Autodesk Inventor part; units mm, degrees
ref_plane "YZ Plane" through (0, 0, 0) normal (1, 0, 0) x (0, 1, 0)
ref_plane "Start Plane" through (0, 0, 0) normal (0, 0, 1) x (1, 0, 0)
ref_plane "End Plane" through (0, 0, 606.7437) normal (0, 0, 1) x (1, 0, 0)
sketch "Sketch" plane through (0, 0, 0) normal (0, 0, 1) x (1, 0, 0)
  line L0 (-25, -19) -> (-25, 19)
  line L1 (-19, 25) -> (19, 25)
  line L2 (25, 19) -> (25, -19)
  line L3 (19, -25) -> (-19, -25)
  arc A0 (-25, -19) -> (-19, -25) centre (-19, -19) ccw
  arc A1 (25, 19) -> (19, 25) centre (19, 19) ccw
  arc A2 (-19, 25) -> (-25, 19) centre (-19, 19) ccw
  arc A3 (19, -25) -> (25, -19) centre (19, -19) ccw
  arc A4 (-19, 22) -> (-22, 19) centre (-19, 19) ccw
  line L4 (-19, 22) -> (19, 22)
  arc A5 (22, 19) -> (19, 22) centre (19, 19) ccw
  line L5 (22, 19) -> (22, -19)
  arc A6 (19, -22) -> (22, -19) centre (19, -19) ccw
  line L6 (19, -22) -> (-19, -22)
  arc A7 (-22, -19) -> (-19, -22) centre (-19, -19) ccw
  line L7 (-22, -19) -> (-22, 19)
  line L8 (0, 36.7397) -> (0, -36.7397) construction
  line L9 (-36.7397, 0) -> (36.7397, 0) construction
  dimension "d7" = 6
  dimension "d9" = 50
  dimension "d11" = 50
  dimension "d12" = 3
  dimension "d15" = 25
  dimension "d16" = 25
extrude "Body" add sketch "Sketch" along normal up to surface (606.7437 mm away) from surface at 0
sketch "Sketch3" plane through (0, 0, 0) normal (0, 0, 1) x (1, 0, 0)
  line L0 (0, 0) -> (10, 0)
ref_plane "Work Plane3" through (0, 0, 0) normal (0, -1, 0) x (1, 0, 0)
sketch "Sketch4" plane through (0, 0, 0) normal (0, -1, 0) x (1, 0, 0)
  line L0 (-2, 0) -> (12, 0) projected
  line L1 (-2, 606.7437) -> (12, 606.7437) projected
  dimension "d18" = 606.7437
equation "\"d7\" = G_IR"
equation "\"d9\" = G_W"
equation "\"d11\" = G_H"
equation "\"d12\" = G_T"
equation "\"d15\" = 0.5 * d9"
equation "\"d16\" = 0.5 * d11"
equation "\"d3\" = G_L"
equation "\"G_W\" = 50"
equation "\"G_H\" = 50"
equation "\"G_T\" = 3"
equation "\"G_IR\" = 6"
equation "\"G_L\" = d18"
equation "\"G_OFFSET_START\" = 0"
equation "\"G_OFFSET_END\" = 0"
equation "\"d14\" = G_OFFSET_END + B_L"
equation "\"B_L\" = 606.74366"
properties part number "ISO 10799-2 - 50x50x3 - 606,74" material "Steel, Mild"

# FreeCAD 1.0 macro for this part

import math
import FreeCAD as App
import Part
import Sketcher
from FreeCAD import Vector
Q = App.Units.Quantity

doc = App.newDocument("Part")
body = doc.addObject("PartDesign::Body", "Body")

# Sketch on XY plane
sketch1 = body.newObject("Sketcher::SketchObject", "Sketch")
sketch1.AttachmentSupport = (doc.getObject("XY_Plane"), [""])
sketch1.MapMode = "FlatFace"
sketch1.addGeometry(Part.LineSegment(Vector(-25, 19, 0), Vector(-25, -19, 0)), False)
sketch1.addGeometry(Part.ArcOfCircle(Part.Circle(Vector(-19, -19, 0), Vector(0, 0, 1), 6), math.radians(180), math.radians(270)), False)
sketch1.addGeometry(Part.LineSegment(Vector(-19, -25, 0), Vector(19, -25, 0)), False)
sketch1.addGeometry(Part.ArcOfCircle(Part.Circle(Vector(19, -19, 0), Vector(0, 0, 1), 6), math.radians(-90), math.radians(0)), False)
sketch1.addGeometry(Part.LineSegment(Vector(25, -19, 0), Vector(25, 19, 0)), False)
sketch1.addGeometry(Part.ArcOfCircle(Part.Circle(Vector(19, 19, 0), Vector(0, 0, 1), 6), math.radians(0), math.radians(90)), False)
sketch1.addGeometry(Part.LineSegment(Vector(19, 25, 0), Vector(-19, 25, 0)), False)
sketch1.addGeometry(Part.ArcOfCircle(Part.Circle(Vector(-19, 19, 0), Vector(0, 0, 1), 6), math.radians(90), math.radians(180)), False)
sketch1.addGeometry(Part.ArcOfCircle(Part.Circle(Vector(-19, 19, 0), Vector(0, 0, 1), 3), math.radians(90), math.radians(180)), False)
sketch1.addGeometry(Part.LineSegment(Vector(-19, 22, 0), Vector(19, 22, 0)), False)
sketch1.addGeometry(Part.ArcOfCircle(Part.Circle(Vector(19, 19, 0), Vector(0, 0, 1), 3), math.radians(0), math.radians(90)), False)
sketch1.addGeometry(Part.LineSegment(Vector(22, 19, 0), Vector(22, -19, 0)), False)
sketch1.addGeometry(Part.ArcOfCircle(Part.Circle(Vector(19, -19, 0), Vector(0, 0, 1), 3), math.radians(-90), math.radians(0)), False)
sketch1.addGeometry(Part.LineSegment(Vector(19, -22, 0), Vector(-19, -22, 0)), False)
sketch1.addGeometry(Part.ArcOfCircle(Part.Circle(Vector(-19, -19, 0), Vector(0, 0, 1), 3), math.radians(180), math.radians(270)), False)
sketch1.addGeometry(Part.LineSegment(Vector(-22, -19, 0), Vector(-22, 19, 0)), False)
sketch1.addConstraint(Sketcher.Constraint("Tangent", 0, 2, 1, 1))
sketch1.addConstraint(Sketcher.Constraint("Tangent", 1, 2, 2, 1))
sketch1.addConstraint(Sketcher.Constraint("Tangent", 2, 2, 3, 1))
sketch1.addConstraint(Sketcher.Constraint("Tangent", 3, 2, 4, 1))
sketch1.addConstraint(Sketcher.Constraint("Tangent", 4, 2, 5, 1))
sketch1.addConstraint(Sketcher.Constraint("Tangent", 5, 2, 6, 1))
sketch1.addConstraint(Sketcher.Constraint("Tangent", 6, 2, 7, 1))
sketch1.addConstraint(Sketcher.Constraint("Tangent", 7, 2, 0, 1))
sketch1.addConstraint(Sketcher.Constraint("Tangent", 8, 1, 9, 1))
sketch1.addConstraint(Sketcher.Constraint("Tangent", 9, 2, 10, 2))
sketch1.addConstraint(Sketcher.Constraint("Tangent", 10, 1, 11, 1))
sketch1.addConstraint(Sketcher.Constraint("Tangent", 11, 2, 12, 2))
sketch1.addConstraint(Sketcher.Constraint("Tangent", 12, 1, 13, 1))
sketch1.addConstraint(Sketcher.Constraint("Tangent", 13, 2, 14, 2))
sketch1.addConstraint(Sketcher.Constraint("Tangent", 14, 1, 15, 1))
sketch1.addConstraint(Sketcher.Constraint("Tangent", 15, 2, 8, 2))
sketch1.addConstraint(Sketcher.Constraint("Vertical", 0))
sketch1.addConstraint(Sketcher.Constraint("Horizontal", 2))
sketch1.addConstraint(Sketcher.Constraint("Vertical", 4))
sketch1.addConstraint(Sketcher.Constraint("Horizontal", 6))
sketch1.addConstraint(Sketcher.Constraint("Horizontal", 9))
sketch1.addConstraint(Sketcher.Constraint("Vertical", 11))
sketch1.addConstraint(Sketcher.Constraint("Horizontal", 13))
sketch1.addConstraint(Sketcher.Constraint("Vertical", 15))
sketch1.addConstraint(Sketcher.Constraint("Coincident", 8, 3, 7, 3))
sketch1.addConstraint(Sketcher.Constraint("Coincident", 10, 3, 5, 3))
sketch1.addConstraint(Sketcher.Constraint("Coincident", 12, 3, 3, 3))
sketch1.addConstraint(Sketcher.Constraint("Equal", 1, 3))
sketch1.addConstraint(Sketcher.Constraint("Equal", 3, 5))
sketch1.addConstraint(Sketcher.Constraint("Equal", 5, 7))
sketch1.addConstraint(Sketcher.Constraint("Equal", 12, 14))
sketch1.addConstraint(Sketcher.Constraint("Symmetric", 1, 3, 5, 3, -1, 1))
sketch1.addConstraint(Sketcher.Constraint("Equal", 13, 0))
sketch1.addConstraint(Sketcher.Constraint("Radius", 1, Q("6 mm")))
sketch1.addConstraint(Sketcher.Constraint("Radius", 8, Q("3 mm")))
sketch1.addConstraint(Sketcher.Constraint("DistanceX", 0, 2, -1, 1, Q("25 mm")))
pad1 = body.newObject("PartDesign::Pad", "Pad")
pad1.Profile = sketch1
pad1.Length = 606.7437

doc.recompute()
